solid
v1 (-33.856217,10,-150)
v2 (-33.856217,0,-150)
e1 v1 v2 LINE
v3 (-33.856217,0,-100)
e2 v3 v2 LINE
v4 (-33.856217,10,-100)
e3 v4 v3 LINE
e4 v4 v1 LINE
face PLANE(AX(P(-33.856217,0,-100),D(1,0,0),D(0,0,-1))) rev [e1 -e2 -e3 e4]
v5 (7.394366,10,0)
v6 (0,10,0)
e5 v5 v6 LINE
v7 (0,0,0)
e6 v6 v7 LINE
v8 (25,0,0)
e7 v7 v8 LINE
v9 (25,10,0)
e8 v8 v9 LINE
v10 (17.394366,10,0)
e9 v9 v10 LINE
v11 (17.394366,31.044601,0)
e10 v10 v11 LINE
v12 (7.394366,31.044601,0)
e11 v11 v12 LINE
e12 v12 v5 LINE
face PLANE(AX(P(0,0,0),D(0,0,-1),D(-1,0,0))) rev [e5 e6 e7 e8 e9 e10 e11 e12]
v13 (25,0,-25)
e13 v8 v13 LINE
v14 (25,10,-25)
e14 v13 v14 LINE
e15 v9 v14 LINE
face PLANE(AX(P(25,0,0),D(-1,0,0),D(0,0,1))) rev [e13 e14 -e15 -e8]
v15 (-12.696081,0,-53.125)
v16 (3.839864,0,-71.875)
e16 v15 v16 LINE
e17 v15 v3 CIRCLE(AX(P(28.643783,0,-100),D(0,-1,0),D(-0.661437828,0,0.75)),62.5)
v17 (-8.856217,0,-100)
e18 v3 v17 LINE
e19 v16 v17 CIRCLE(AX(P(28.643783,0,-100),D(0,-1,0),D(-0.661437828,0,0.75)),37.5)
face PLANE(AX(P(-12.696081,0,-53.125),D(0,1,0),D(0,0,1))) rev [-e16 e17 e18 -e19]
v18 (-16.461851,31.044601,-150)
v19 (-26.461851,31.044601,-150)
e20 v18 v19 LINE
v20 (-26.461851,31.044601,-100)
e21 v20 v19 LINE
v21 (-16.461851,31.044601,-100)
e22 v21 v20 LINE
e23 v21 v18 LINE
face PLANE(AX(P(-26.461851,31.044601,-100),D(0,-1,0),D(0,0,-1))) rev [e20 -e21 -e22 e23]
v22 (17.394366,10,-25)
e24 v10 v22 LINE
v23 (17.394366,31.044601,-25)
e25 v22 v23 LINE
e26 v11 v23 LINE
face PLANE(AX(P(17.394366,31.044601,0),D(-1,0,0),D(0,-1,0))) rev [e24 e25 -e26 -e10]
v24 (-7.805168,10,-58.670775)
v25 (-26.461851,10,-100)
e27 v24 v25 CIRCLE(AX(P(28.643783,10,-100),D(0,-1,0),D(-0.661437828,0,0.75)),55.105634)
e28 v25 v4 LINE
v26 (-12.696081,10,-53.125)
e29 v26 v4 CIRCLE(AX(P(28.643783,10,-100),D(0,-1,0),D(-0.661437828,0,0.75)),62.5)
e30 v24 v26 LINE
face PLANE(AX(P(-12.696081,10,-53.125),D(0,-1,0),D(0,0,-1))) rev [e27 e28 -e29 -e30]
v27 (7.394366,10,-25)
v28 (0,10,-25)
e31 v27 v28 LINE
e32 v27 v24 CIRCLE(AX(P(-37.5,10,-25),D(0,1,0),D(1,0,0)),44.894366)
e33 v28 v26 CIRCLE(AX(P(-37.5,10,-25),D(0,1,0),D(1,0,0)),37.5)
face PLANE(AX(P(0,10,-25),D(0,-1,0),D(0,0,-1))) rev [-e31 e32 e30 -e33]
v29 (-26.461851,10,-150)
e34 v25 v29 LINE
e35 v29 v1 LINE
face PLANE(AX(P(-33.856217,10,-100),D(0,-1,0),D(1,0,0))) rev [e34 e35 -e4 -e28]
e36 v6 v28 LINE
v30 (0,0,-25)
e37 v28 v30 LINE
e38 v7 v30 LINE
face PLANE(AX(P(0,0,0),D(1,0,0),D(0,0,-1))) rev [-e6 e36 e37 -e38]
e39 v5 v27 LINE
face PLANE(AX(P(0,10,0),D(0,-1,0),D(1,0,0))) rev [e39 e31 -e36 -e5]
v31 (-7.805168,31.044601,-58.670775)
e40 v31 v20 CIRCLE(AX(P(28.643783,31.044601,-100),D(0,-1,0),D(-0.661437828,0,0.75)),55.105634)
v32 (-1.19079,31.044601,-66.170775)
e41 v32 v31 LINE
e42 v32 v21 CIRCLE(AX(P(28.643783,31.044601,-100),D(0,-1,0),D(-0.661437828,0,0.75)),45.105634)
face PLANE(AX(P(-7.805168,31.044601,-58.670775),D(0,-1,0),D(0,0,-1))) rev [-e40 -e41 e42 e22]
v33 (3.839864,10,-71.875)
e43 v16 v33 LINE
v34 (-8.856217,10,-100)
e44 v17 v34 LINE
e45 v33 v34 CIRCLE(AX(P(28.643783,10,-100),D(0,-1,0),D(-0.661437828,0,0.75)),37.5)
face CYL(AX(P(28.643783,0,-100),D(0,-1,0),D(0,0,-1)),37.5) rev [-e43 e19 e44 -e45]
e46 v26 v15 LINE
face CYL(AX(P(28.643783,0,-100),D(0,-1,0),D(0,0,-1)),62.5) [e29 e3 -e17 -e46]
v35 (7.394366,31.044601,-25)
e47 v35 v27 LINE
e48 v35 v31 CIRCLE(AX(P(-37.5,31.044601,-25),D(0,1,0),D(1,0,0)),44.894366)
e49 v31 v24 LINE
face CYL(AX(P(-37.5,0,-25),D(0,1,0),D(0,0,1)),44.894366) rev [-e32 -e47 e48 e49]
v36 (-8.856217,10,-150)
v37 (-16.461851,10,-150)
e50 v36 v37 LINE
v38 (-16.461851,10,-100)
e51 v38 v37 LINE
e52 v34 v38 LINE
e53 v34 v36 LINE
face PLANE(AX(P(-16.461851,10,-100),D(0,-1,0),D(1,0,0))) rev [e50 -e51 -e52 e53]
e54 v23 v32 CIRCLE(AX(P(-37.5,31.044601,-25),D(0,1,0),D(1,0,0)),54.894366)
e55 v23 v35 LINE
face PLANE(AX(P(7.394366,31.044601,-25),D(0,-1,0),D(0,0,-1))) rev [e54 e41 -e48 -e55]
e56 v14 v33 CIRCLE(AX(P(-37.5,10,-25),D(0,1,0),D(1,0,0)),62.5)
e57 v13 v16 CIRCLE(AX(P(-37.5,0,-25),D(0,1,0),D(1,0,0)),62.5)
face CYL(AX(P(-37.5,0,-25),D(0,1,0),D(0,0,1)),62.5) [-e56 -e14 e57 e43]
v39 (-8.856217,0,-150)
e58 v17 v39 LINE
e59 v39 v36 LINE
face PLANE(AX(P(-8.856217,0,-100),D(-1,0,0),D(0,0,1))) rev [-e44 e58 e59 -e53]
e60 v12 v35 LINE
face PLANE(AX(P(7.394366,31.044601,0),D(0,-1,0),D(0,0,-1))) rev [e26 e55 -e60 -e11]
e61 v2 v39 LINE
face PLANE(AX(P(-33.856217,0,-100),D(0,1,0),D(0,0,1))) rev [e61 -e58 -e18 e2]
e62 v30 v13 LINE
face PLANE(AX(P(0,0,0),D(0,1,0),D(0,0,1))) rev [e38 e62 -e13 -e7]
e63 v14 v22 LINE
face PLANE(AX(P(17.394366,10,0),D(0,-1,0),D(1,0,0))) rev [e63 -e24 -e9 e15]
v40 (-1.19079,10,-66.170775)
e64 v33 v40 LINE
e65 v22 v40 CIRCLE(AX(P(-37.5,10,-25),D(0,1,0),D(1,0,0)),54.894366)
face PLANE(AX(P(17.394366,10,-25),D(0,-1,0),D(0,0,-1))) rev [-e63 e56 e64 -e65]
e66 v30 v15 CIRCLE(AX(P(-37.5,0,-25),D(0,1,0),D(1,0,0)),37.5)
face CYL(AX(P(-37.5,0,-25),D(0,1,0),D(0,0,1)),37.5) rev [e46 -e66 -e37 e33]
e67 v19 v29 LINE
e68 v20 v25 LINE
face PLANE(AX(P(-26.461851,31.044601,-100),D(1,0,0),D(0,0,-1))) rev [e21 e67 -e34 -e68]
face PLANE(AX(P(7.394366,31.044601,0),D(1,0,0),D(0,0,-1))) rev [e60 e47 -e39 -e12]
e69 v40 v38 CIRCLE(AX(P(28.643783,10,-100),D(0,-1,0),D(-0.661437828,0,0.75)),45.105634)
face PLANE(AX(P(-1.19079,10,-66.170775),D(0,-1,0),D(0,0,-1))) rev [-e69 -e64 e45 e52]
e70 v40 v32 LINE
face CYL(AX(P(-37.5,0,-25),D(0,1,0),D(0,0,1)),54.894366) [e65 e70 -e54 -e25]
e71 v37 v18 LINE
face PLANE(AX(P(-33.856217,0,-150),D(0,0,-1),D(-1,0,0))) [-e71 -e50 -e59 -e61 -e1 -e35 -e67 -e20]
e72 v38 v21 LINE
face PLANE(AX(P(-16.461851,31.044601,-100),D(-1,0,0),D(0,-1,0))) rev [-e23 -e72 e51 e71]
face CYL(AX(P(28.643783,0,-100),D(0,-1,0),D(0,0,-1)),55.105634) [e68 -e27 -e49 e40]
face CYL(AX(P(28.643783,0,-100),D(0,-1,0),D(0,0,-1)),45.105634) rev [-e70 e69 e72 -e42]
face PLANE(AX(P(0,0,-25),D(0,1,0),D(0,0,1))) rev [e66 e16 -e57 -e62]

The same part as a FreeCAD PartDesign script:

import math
import FreeCAD as App
import Part
import Sketcher
Q = App.Units.Quantity

doc = App.newDocument("Part")
params = doc.addObject("Spreadsheet::Sheet", "Params")
for row, (alias, value) in enumerate([
    ("sketch1_width", "10 mm"),
    ("sketch1_width2", "25 mm"),
    ("sketch2_radius", "50 mm"),
    ("sketch2_height", "25 mm"),
    ("sketch2_height2", "50 mm"),
], start=1):
    params.set(f"A{row}", alias)
    params.set(f"B{row}", "=" + value)
    params.setAlias(f"B{row}", alias)

body = doc.addObject("PartDesign::Body", "Body")

# Sketch on XY plane
sketch1 = doc.addObject("Sketcher::SketchObject", "Sketch")
body.addObject(sketch1)
sketch1.AttachmentSupport = (doc.XY_Plane, [""])
sketch1.MapMode = "FlatFace"
sketch1.addGeometry([
    Part.LineSegment(App.Vector(25, 10, 0), App.Vector(17.394366, 10, 0)),  # 0
    Part.LineSegment(App.Vector(17.394366, 10, 0), App.Vector(17.394366, 31.044601, 0)),  # 1
    Part.LineSegment(App.Vector(17.394366, 31.044601, 0), App.Vector(7.394366, 31.044601, 0)),  # 2
    Part.LineSegment(App.Vector(7.394366, 31.044601, 0), App.Vector(7.394366, 10, 0)),  # 3
    Part.LineSegment(App.Vector(7.394366, 10, 0), App.Vector(0, 10, 0)),  # 4
    Part.LineSegment(App.Vector(0, 10, 0), App.Vector(0, 0, 0)),  # 5
    Part.LineSegment(App.Vector(0, 0, 0), App.Vector(25, 0, 0)),  # 6
    Part.LineSegment(App.Vector(25, 0, 0), App.Vector(25, 10, 0)),  # 7
], False)
sketch1.addConstraint([
    Sketcher.Constraint("Coincident", 0, 2, 1, 1),
    Sketcher.Constraint("Coincident", 1, 2, 2, 1),
    Sketcher.Constraint("Coincident", 2, 2, 3, 1),
    Sketcher.Constraint("Coincident", 3, 2, 4, 1),
    Sketcher.Constraint("Coincident", 4, 2, 5, 1),
    Sketcher.Constraint("Coincident", 5, 2, 6, 1),
    Sketcher.Constraint("Coincident", 6, 2, 7, 1),
    Sketcher.Constraint("Coincident", 7, 2, 0, 1),
    Sketcher.Constraint("Horizontal", 0),
    Sketcher.Constraint("Vertical", 1),
    Sketcher.Constraint("Horizontal", 2),
    Sketcher.Constraint("Vertical", 3),
    Sketcher.Constraint("Horizontal", 4),
    Sketcher.Constraint("Vertical", 5),
    Sketcher.Constraint("Horizontal", 6),
    Sketcher.Constraint("Vertical", 7),
    Sketcher.Constraint("Coincident", 5, 2, -1, 1),
    Sketcher.Constraint("Horizontal", 0, 2, 3, 2),
    Sketcher.Constraint("Equal", 2, 5),
    Sketcher.Constraint("DistanceX", 2, 2, 2, 1, Q("10 mm")),
    Sketcher.Constraint("DistanceX", 6, 1, 6, 2, Q("25 mm")),
    Sketcher.Constraint("DistanceY", 1, 1, 1, 2, Q("21.044601 mm")),
    Sketcher.Constraint("DistanceX", 0, 2, 0, 1, Q("7.605634 mm")),
])
sketch1.setExpression("Constraints[19]", "Params.sketch1_width")
sketch1.setExpression("Constraints[20]", "Params.sketch1_width2")

# Sketch on XZ plane
sketch2 = doc.addObject("Sketcher::SketchObject", "Sketch001")
body.addObject(sketch2)
sketch2.AttachmentSupport = (doc.XZ_Plane, [""])
sketch2.MapMode = "FlatFace"
sketch2.addGeometry([
    Part.LineSegment(App.Vector(12.5, 0, 0), App.Vector(12.5, -25, 0)),
    Part.ArcOfCircle(Part.Circle(App.Vector(-37.5, -25, 0), App.Vector(0, 0, 1), 50), math.radians(-48.590378), math.radians(0)),
    Part.ArcOfCircle(Part.Circle(App.Vector(28.643783, -100, 0), App.Vector(0, 0, 1), 50), math.radians(131.409622), math.radians(180)),
    Part.LineSegment(App.Vector(-21.356217, -100, 0), App.Vector(-21.356217, -150, 0)),
], False)
sketch2.addConstraint([
    Sketcher.Constraint("Tangent", 0, 2, 1, 2),
    Sketcher.Constraint("Tangent", 1, 1, 2, 1),
    Sketcher.Constraint("Tangent", 2, 2, 3, 1),
    Sketcher.Constraint("Vertical", 0),
    Sketcher.Constraint("Vertical", 3),
    Sketcher.Constraint("Equal", 1, 2),
    Sketcher.Constraint("PointOnObject", 0, 1, -1),
    Sketcher.Constraint("Radius", 1, Q("50 mm")),
    Sketcher.Constraint("DistanceY", 0, 2, 0, 1, Q("25 mm")),
    Sketcher.Constraint("DistanceY", 3, 2, 3, 1, Q("50 mm")),
    Sketcher.Constraint("DistanceY", 2, 3, -1, 1, Q("100 mm")),
    Sketcher.Constraint("DistanceX", 1, 3, -1, 1, Q("37.5 mm")),
])
sketch2.setExpression("Constraints[7]", "Params.sketch2_radius")
sketch2.setExpression("Constraints[8]", "Params.sketch2_height")
sketch2.setExpression("Constraints[9]", "Params.sketch2_height2")
doc.recompute()

additivepipe = doc.addObject("PartDesign::AdditivePipe", "AdditivePipe")
body.addObject(additivepipe)
additivepipe.Profile = sketch1
additivepipe.Spine = (sketch2, ["Edge1", "Edge2", "Edge3", "Edge4"])

doc.recompute()
